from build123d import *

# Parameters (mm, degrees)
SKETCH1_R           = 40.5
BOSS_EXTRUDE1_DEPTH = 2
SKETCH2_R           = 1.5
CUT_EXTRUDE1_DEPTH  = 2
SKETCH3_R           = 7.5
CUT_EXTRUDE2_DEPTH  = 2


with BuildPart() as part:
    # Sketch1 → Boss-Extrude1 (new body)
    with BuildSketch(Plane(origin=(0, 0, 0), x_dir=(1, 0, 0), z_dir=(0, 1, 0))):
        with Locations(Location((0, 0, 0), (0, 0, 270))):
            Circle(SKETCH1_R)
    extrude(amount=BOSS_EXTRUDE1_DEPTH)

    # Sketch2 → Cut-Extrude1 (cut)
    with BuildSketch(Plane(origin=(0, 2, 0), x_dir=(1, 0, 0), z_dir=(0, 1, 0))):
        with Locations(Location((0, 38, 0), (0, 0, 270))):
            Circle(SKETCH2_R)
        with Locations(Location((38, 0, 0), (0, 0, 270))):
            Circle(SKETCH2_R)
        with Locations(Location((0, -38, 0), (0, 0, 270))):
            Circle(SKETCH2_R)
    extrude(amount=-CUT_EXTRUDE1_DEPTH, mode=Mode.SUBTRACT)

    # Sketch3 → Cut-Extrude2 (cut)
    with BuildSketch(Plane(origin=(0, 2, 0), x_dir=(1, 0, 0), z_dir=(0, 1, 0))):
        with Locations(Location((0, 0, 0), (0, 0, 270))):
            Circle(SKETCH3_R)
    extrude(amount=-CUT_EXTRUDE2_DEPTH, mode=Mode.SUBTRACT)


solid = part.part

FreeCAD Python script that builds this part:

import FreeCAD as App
import Part
import Sketcher
from FreeCAD import Vector
Q = App.Units.Quantity

doc = App.newDocument("Part")
body = doc.addObject("PartDesign::Body", "Body")

# Sketch on XZ plane
sketch1 = body.newObject("Sketcher::SketchObject", "Sketch")
sketch1.AttachmentSupport = (doc.getObject("XZ_Plane"), [""])
sketch1.MapMode = "FlatFace"
sketch1.addGeometry(Part.Circle(Vector(0, 0, 0), Vector(0, 0, 1), 40), False)
sketch1.addConstraint(Sketcher.Constraint("Coincident", 0, 3, -1, 1))
sketch1.addConstraint(Sketcher.Constraint("Diameter", 0, Q("81 mm")))
pad1 = body.newObject("PartDesign::Pad", "Pad")
pad1.Profile = sketch1
pad1.Length = 2
pad1.Reversed = True

# Sketch on XZ plane
sketch2 = body.newObject("Sketcher::SketchObject", "Sketch001")
sketch2.AttachmentSupport = (doc.getObject("XZ_Plane"), [""])
sketch2.MapMode = "FlatFace"
sketch2.AttachmentOffset = App.Placement(Vector(0, 0, -2), App.Rotation())
sketch2.addGeometry(Part.Circle(Vector(0, -38, 0), Vector(0, 0, 1), 1.5), False)
sketch2.addGeometry(Part.Circle(Vector(38, 0, 0), Vector(0, 0, 1), 1.5), False)
sketch2.addGeometry(Part.Circle(Vector(0, 38, 0), Vector(0, 0, 1), 1.5), False)
sketch2.addConstraint(Sketcher.Constraint("Equal", 0, 1))
sketch2.addConstraint(Sketcher.Constraint("Equal", 1, 2))
sketch2.addConstraint(Sketcher.Constraint("Symmetric", 0, 3, 2, 3, -1, 1))
sketch2.addConstraint(Sketcher.Constraint("PointOnObject", 0, 3, -2))
sketch2.addConstraint(Sketcher.Constraint("PointOnObject", 1, 3, -1))
sketch2.addConstraint(Sketcher.Constraint("Diameter", 0, Q("3 mm")))
sketch2.addConstraint(Sketcher.Constraint("DistanceY", 0, 3, -1, 1, Q("38 mm")))
sketch2.addConstraint(Sketcher.Constraint("DistanceX", -1, 1, 1, 3, Q("38 mm")))
pocket1 = body.newObject("PartDesign::Pocket", "Pocket")
pocket1.Profile = sketch2
pocket1.Length = 2
pocket1.Reversed = True

# Sketch on XZ plane
sketch3 = body.newObject("Sketcher::SketchObject", "Sketch002")
sketch3.AttachmentSupport = (doc.getObject("XZ_Plane"), [""])
sketch3.MapMode = "FlatFace"
sketch3.AttachmentOffset = App.Placement(Vector(0, 0, -2), App.Rotation())
sketch3.addGeometry(Part.Circle(Vector(0, 0, 0), Vector(0, 0, 1), 8), False)
sketch3.addConstraint(Sketcher.Constraint("Coincident", 0, 3, -1, 1))
sketch3.addConstraint(Sketcher.Constraint("Diameter", 0, Q("15 mm")))
pocket2 = body.newObject("PartDesign::Pocket", "Pocket001")
pocket2.Profile = sketch3
pocket2.Length = 2
pocket2.Reversed = True

doc.recompute()
